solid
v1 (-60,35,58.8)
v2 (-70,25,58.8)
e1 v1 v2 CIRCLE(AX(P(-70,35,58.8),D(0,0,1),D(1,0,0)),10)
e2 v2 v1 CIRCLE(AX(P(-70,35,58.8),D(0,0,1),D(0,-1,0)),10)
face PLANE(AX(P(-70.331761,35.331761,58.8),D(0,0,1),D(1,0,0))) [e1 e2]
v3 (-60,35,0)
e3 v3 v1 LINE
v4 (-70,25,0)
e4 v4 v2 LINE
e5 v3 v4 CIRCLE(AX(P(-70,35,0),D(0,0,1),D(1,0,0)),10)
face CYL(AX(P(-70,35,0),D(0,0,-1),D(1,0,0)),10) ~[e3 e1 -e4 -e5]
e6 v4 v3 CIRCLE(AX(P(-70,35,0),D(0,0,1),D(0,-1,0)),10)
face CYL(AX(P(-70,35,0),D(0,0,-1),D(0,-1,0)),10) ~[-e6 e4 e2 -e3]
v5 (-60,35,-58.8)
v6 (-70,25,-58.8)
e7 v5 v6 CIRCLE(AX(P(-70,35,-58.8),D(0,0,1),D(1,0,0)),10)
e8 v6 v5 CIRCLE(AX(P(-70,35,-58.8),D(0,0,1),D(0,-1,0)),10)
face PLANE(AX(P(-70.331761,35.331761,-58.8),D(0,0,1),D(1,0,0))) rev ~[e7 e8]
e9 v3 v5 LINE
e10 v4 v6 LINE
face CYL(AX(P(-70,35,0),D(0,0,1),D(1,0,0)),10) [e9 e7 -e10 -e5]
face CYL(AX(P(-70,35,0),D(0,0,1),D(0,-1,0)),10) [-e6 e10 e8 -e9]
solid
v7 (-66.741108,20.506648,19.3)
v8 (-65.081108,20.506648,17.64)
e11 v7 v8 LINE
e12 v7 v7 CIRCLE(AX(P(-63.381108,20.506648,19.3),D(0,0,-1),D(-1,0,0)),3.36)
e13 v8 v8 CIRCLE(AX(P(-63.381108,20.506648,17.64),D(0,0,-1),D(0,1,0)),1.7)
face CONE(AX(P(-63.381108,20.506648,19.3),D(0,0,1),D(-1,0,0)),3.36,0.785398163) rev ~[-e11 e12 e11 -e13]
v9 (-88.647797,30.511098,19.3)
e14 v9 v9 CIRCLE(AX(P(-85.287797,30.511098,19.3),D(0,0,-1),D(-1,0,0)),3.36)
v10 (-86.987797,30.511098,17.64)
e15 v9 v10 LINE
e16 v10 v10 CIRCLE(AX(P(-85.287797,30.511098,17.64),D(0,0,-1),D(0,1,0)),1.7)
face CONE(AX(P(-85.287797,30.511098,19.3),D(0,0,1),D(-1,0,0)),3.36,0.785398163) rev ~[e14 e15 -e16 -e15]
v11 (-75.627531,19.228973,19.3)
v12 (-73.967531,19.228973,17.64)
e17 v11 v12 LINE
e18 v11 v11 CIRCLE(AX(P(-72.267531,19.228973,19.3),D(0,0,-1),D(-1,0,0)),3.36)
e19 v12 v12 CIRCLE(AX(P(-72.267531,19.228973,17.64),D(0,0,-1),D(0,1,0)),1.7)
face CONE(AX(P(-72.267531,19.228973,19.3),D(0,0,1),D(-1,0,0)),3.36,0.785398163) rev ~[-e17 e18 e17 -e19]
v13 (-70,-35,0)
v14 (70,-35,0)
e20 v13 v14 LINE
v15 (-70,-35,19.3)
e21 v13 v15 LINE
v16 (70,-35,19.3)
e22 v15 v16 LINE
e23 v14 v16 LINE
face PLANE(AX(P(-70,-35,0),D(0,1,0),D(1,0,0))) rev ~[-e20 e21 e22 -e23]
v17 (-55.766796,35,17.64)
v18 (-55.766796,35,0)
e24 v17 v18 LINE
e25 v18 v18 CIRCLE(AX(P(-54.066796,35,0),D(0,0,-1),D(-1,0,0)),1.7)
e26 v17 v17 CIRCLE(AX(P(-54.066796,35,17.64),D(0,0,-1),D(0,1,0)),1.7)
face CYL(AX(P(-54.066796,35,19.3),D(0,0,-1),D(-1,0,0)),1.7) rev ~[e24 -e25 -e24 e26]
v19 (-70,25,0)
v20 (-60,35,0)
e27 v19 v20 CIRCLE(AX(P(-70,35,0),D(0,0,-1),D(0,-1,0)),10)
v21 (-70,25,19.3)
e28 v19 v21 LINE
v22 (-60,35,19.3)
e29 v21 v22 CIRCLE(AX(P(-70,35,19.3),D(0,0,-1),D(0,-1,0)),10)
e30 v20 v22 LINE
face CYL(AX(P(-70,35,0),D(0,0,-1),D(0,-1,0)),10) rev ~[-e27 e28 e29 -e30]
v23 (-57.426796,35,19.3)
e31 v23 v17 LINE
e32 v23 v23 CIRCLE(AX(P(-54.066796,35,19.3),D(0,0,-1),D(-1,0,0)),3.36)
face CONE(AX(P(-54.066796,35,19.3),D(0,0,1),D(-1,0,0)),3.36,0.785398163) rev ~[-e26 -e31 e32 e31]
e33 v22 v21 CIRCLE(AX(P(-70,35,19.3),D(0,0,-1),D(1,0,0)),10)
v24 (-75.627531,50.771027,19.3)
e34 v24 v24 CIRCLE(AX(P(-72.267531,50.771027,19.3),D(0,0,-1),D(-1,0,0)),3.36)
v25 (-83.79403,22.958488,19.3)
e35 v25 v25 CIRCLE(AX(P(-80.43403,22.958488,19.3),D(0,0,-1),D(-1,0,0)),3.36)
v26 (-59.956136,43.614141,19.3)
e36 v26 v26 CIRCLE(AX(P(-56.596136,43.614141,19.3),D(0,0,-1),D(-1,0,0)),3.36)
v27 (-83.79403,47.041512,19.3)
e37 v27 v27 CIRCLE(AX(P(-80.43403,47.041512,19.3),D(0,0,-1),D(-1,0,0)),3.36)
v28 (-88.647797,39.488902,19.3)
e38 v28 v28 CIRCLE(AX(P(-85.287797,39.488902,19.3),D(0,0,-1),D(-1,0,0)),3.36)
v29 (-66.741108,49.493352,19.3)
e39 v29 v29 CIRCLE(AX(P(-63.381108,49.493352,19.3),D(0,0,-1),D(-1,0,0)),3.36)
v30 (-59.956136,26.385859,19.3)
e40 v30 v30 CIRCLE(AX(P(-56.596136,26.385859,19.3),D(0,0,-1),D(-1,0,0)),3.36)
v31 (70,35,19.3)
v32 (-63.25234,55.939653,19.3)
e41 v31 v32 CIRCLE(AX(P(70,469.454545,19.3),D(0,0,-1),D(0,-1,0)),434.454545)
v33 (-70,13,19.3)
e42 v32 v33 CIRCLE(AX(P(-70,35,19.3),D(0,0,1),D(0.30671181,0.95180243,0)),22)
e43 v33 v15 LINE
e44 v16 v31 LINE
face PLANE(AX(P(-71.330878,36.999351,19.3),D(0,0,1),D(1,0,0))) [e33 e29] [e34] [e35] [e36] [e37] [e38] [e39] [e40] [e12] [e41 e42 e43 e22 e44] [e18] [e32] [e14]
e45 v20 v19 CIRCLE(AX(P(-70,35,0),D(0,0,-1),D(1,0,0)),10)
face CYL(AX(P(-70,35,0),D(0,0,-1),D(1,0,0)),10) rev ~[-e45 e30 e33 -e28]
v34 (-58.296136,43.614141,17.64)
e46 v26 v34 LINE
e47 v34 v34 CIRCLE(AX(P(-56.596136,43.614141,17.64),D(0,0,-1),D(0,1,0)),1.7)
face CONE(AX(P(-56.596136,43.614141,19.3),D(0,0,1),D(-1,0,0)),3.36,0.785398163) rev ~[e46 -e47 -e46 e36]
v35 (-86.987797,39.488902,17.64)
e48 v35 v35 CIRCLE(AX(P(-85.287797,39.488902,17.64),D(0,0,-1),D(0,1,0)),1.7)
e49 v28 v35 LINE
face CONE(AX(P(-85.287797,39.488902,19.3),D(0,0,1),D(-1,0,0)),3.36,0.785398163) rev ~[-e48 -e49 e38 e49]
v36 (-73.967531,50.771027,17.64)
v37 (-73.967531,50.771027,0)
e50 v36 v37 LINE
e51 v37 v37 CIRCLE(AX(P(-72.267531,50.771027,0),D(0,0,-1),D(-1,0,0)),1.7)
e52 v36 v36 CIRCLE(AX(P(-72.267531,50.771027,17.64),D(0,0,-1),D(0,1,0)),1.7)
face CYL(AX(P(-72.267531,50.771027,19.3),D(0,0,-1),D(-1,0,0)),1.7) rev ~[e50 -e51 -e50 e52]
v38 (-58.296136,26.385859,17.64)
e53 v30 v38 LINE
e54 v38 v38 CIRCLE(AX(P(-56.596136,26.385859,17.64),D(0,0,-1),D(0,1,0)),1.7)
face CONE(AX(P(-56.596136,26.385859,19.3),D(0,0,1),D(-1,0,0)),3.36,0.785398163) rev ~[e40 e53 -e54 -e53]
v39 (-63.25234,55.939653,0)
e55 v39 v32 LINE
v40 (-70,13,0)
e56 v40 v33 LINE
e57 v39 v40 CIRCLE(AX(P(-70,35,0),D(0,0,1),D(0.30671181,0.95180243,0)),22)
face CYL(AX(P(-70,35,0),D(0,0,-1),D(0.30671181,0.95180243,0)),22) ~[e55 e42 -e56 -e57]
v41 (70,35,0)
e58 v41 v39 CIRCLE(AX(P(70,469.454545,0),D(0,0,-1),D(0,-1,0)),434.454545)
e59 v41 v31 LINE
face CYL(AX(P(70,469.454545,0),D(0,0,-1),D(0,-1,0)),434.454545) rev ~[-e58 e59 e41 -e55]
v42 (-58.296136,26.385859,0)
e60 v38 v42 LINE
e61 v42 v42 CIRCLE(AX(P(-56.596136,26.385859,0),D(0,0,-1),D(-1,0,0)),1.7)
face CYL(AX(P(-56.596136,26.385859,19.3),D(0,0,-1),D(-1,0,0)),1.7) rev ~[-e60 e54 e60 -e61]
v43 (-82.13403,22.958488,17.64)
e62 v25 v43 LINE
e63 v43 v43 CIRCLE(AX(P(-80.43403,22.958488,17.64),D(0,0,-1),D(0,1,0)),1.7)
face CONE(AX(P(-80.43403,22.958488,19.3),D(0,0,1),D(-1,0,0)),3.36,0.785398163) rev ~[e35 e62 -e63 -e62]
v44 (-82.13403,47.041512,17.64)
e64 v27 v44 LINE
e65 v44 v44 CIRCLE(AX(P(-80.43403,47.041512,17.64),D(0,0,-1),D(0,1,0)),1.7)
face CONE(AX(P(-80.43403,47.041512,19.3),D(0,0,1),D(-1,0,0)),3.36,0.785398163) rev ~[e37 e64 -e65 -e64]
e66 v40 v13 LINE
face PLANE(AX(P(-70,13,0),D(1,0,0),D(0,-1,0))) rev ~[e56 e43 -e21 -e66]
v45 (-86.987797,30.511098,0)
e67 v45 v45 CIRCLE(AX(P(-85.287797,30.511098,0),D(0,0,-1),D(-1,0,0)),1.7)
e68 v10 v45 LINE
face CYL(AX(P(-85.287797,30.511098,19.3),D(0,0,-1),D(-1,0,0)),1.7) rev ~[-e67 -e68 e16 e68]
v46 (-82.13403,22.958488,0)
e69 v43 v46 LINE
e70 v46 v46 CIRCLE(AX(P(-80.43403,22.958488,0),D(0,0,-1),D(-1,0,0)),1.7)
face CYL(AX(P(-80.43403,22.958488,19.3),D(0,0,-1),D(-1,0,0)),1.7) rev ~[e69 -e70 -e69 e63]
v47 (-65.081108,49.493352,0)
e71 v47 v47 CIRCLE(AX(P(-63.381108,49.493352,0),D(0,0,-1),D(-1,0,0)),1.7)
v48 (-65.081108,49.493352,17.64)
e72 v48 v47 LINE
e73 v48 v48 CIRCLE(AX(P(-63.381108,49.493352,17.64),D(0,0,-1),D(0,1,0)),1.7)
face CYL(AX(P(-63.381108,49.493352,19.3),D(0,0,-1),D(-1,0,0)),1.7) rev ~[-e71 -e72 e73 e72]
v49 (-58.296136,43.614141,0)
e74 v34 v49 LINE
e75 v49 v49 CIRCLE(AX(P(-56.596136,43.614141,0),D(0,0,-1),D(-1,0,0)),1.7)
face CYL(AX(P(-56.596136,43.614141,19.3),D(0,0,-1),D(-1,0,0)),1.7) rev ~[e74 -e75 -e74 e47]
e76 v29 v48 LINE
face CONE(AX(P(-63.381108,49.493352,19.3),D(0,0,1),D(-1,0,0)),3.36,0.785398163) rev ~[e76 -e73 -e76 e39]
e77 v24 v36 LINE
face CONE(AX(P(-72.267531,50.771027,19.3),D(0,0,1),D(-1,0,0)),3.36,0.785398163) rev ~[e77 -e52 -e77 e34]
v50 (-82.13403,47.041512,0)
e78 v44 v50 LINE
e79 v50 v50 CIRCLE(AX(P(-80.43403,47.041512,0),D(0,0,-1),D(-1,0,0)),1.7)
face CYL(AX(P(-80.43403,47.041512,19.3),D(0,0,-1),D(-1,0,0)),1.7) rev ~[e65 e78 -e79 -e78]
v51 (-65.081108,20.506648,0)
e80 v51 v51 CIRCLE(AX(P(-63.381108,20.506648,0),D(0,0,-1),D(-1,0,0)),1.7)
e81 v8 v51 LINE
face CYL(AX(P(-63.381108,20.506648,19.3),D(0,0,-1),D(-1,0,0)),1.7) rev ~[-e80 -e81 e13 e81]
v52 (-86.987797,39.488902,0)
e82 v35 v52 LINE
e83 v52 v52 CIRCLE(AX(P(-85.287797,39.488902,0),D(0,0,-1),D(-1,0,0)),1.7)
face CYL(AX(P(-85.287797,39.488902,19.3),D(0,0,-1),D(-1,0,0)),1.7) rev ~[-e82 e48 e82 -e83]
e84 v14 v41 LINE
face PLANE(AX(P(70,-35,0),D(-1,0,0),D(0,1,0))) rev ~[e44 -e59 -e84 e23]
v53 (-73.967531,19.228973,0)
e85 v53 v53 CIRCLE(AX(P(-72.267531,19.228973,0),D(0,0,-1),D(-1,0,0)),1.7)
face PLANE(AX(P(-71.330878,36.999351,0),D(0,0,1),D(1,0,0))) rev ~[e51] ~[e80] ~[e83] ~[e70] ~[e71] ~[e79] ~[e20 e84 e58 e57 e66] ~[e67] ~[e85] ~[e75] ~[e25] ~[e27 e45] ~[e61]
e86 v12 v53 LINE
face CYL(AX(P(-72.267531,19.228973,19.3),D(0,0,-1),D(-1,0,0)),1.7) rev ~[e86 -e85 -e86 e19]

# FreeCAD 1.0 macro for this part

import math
import FreeCAD as App
import Part
import Sketcher
from FreeCAD import Vector
Q = App.Units.Quantity

doc = App.newDocument("Part")
body = doc.addObject("PartDesign::Body", "Body")

sketch1 = body.newObject("Sketcher::SketchObject", "Sketch")
sketch1.AttachmentSupport = (doc.getObject("XY_Plane"), [""])
sketch1.MapMode = "FlatFace"
sketch1.addGeometry([
    Part.ArcOfCircle(Part.Circle(Vector(-70, 35, 0), Vector(0, 0, 1), 22), math.radians(72.13882), math.radians(270)),
    Part.LineSegment(Vector(-70, 13, 0), Vector(-70, -35, 0)),
    Part.LineSegment(Vector(-70, -35, 0), Vector(70, -35, 0)),
    Part.LineSegment(Vector(70, -35, 0), Vector(70, 35, 0)),
    Part.ArcOfCircle(Part.Circle(Vector(70, 469.454545, 0), Vector(0, 0, 1), 434.454545), math.radians(-107.86118), math.radians(-90)),
    Part.ArcOfCircle(Part.Circle(Vector(-70, 35, 0), Vector(0, 0, 1), 10), math.radians(0), math.radians(270)),
    Part.ArcOfCircle(Part.Circle(Vector(-70, 35, 0), Vector(0, 0, 1), 10), math.radians(-90), math.radians(0)),
], False)
sketch1.addConstraint([
    Sketcher.Constraint("Coincident", 0, 2, 1, 1),
    Sketcher.Constraint("Coincident", 1, 2, 2, 1),
    Sketcher.Constraint("Coincident", 2, 2, 3, 1),
    Sketcher.Constraint("Coincident", 3, 2, 4, 2),
    Sketcher.Constraint("Tangent", 4, 1, 0, 1),
    Sketcher.Constraint("Tangent", 5, 1, 6, 2),
    Sketcher.Constraint("Coincident", 6, 1, 5, 2),
    Sketcher.Constraint("Vertical", 1),
    Sketcher.Constraint("Horizontal", 2),
    Sketcher.Constraint("Vertical", 3),
    Sketcher.Constraint("Coincident", 5, 3, 0, 3),
    Sketcher.Constraint("Symmetric", 1, 2, 3, 2, -1, 1),
    Sketcher.Constraint("Horizontal", 6, 3, 3, 2),
    Sketcher.Constraint("Horizontal", 3, 2, 5, 1),
    Sketcher.Constraint("Vertical", 6, 3, 0, 2),
    Sketcher.Constraint("Vertical", 4, 3, 2, 2),
    Sketcher.Constraint("Vertical", 1, 2, 6, 1),
    Sketcher.Constraint("Radius", 0, Q("22 mm")),
    Sketcher.Constraint("Radius", 5, Q("10 mm")),
    Sketcher.Constraint("DistanceX", 2, 1, 2, 2, Q("140 mm")),
    Sketcher.Constraint("DistanceY", 1, 2, 1, 1, Q("48 mm")),
])
pad1 = body.newObject("PartDesign::Pad", "Pad")
pad1.Profile = sketch1
pad1.Length = 19.3

sketch2 = body.newObject("Sketcher::SketchObject", "Sketch001")
sketch2.AttachmentSupport = (doc.getObject("XY_Plane"), [""])
sketch2.MapMode = "FlatFace"
sketch2.AttachmentOffset = App.Placement(Vector(0, 0, 19.3), App.Rotation())
sketch2.addGeometry([
    Part.Circle(Vector(-72.267531, 50.771027, 0), Vector(0, 0, 1), 1.7),
    Part.Circle(Vector(-63.381108, 49.493352, 0), Vector(0, 0, 1), 1.7),
    Part.Circle(Vector(-56.596136, 43.614141, 0), Vector(0, 0, 1), 1.7),
    Part.Circle(Vector(-54.066796, 35, 0), Vector(0, 0, 1), 1.7),
    Part.Circle(Vector(-56.596136, 26.385859, 0), Vector(0, 0, 1), 1.7),
    Part.Circle(Vector(-63.381108, 20.506648, 0), Vector(0, 0, 1), 1.7),
    Part.Circle(Vector(-72.267531, 19.228973, 0), Vector(0, 0, 1), 1.7),
    Part.Circle(Vector(-80.43403, 22.958488, 0), Vector(0, 0, 1), 1.7),
    Part.Circle(Vector(-85.287797, 30.511098, 0), Vector(0, 0, 1), 1.7),
    Part.Circle(Vector(-85.287797, 39.488902, 0), Vector(0, 0, 1), 1.7),
    Part.Circle(Vector(-80.43403, 47.041512, 0), Vector(0, 0, 1), 1.7),
], False)
sketch2.addConstraint([
    Sketcher.Constraint("Equal", 0, 1),
    Sketcher.Constraint("Equal", 1, 2),
    Sketcher.Constraint("Equal", 2, 3),
    Sketcher.Constraint("Equal", 3, 4),
    Sketcher.Constraint("Equal", 4, 5),
    Sketcher.Constraint("Equal", 5, 6),
    Sketcher.Constraint("Equal", 6, 7),
    Sketcher.Constraint("Equal", 7, 8),
    Sketcher.Constraint("Equal", 8, 9),
    Sketcher.Constraint("Equal", 9, 10),
    Sketcher.Constraint("Vertical", 2, 3, 4, 3),
    Sketcher.Constraint("Vertical", 1, 3, 5, 3),
    Sketcher.Constraint("Vertical", 0, 3, 6, 3),
    Sketcher.Constraint("Vertical", 8, 3, 9, 3),
    Sketcher.Constraint("Vertical", 7, 3, 10, 3),
    Sketcher.Constraint("Diameter", 0, Q("3.4 mm")),
    Sketcher.Constraint("DistanceY", -1, 1, 3, 3, Q("35 mm")),
    Sketcher.Constraint("DistanceX", 7, 3, 6, 3, Q("8.166498 mm")),
    Sketcher.Constraint("DistanceX", 0, 3, -1, 1, Q("72.267531 mm")),
    Sketcher.Constraint("DistanceY", -1, 1, 2, 3, Q("43.614141 mm")),
    Sketcher.Constraint("DistanceY", -1, 1, 4, 3, Q("26.385859 mm")),
    Sketcher.Constraint("DistanceY", 2, 3, 1, 3, Q("5.879212 mm")),
    Sketcher.Constraint("DistanceX", 2, 3, 3, 3, Q("2.52934 mm")),
    Sketcher.Constraint("DistanceX", 1, 3, 3, 3, Q("9.314312 mm")),
    Sketcher.Constraint("DistanceY", 5, 3, 4, 3, Q("5.879212 mm")),
    Sketcher.Constraint("DistanceY", 5, 3, 0, 3, Q("30.264379 mm")),
    Sketcher.Constraint("DistanceY", 6, 3, 1, 3, Q("30.264379 mm")),
    Sketcher.Constraint("DistanceX", 7, 3, 5, 3, Q("17.052922 mm")),
    Sketcher.Constraint("DistanceY", 5, 3, 7, 3, Q("2.45184 mm")),
    Sketcher.Constraint("DistanceY", 7, 3, 8, 3, Q("7.55261 mm")),
    Sketcher.Constraint("DistanceX", 8, 3, 5, 3, Q("21.90669 mm")),
    Sketcher.Constraint("DistanceY", 6, 3, 9, 3, Q("20.259929 mm")),
    Sketcher.Constraint("DistanceY", 9, 3, 10, 3, Q("7.55261 mm")),
])
doc.recompute()
hole = body.newObject("PartDesign::Hole", "Hole")
hole.Profile = sketch2
hole.ThreadType = "None"
hole.Diameter = 3.4
hole.DepthType = "ThroughAll"
hole.HoleCutType = "Countersink"
hole.HoleCutDiameter = 6.72
hole.HoleCutCountersinkAngle = 90
body2 = doc.addObject("PartDesign::Body", "Body001")

sketch3 = body2.newObject("Sketcher::SketchObject", "Sketch002")
sketch3.AttachmentSupport = (doc.getObject("XY_Plane001"), [""])
sketch3.MapMode = "FlatFace"
sketch3.addGeometry([
    Part.ArcOfCircle(Part.Circle(Vector(-70, 35, 0), Vector(0, 0, 1), 10), math.radians(0), math.radians(270)),
    Part.ArcOfCircle(Part.Circle(Vector(-70, 35, 0), Vector(0, 0, 1), 10), math.radians(-90), math.radians(0)),
], False)
sketch3.addConstraint([
    Sketcher.Constraint("Tangent", 0, 1, 1, 2),
    Sketcher.Constraint("Coincident", 1, 1, 0, 2),
    Sketcher.Constraint("Horizontal", 1, 3, 0, 1),
    Sketcher.Constraint("Vertical", 0, 3, 1, 1),
    Sketcher.Constraint("Radius", 0, Q("10 mm")),
    Sketcher.Constraint("DistanceX", 0, 3, -1, 1, Q("70 mm")),
    Sketcher.Constraint("DistanceY", -1, 1, 0, 3, Q("35 mm")),
])
pad2 = body2.newObject("PartDesign::Pad", "Pad001")
pad2.Profile = sketch3
pad2.Length = 117.6
pad2.Midplane = True

doc.recompute()
